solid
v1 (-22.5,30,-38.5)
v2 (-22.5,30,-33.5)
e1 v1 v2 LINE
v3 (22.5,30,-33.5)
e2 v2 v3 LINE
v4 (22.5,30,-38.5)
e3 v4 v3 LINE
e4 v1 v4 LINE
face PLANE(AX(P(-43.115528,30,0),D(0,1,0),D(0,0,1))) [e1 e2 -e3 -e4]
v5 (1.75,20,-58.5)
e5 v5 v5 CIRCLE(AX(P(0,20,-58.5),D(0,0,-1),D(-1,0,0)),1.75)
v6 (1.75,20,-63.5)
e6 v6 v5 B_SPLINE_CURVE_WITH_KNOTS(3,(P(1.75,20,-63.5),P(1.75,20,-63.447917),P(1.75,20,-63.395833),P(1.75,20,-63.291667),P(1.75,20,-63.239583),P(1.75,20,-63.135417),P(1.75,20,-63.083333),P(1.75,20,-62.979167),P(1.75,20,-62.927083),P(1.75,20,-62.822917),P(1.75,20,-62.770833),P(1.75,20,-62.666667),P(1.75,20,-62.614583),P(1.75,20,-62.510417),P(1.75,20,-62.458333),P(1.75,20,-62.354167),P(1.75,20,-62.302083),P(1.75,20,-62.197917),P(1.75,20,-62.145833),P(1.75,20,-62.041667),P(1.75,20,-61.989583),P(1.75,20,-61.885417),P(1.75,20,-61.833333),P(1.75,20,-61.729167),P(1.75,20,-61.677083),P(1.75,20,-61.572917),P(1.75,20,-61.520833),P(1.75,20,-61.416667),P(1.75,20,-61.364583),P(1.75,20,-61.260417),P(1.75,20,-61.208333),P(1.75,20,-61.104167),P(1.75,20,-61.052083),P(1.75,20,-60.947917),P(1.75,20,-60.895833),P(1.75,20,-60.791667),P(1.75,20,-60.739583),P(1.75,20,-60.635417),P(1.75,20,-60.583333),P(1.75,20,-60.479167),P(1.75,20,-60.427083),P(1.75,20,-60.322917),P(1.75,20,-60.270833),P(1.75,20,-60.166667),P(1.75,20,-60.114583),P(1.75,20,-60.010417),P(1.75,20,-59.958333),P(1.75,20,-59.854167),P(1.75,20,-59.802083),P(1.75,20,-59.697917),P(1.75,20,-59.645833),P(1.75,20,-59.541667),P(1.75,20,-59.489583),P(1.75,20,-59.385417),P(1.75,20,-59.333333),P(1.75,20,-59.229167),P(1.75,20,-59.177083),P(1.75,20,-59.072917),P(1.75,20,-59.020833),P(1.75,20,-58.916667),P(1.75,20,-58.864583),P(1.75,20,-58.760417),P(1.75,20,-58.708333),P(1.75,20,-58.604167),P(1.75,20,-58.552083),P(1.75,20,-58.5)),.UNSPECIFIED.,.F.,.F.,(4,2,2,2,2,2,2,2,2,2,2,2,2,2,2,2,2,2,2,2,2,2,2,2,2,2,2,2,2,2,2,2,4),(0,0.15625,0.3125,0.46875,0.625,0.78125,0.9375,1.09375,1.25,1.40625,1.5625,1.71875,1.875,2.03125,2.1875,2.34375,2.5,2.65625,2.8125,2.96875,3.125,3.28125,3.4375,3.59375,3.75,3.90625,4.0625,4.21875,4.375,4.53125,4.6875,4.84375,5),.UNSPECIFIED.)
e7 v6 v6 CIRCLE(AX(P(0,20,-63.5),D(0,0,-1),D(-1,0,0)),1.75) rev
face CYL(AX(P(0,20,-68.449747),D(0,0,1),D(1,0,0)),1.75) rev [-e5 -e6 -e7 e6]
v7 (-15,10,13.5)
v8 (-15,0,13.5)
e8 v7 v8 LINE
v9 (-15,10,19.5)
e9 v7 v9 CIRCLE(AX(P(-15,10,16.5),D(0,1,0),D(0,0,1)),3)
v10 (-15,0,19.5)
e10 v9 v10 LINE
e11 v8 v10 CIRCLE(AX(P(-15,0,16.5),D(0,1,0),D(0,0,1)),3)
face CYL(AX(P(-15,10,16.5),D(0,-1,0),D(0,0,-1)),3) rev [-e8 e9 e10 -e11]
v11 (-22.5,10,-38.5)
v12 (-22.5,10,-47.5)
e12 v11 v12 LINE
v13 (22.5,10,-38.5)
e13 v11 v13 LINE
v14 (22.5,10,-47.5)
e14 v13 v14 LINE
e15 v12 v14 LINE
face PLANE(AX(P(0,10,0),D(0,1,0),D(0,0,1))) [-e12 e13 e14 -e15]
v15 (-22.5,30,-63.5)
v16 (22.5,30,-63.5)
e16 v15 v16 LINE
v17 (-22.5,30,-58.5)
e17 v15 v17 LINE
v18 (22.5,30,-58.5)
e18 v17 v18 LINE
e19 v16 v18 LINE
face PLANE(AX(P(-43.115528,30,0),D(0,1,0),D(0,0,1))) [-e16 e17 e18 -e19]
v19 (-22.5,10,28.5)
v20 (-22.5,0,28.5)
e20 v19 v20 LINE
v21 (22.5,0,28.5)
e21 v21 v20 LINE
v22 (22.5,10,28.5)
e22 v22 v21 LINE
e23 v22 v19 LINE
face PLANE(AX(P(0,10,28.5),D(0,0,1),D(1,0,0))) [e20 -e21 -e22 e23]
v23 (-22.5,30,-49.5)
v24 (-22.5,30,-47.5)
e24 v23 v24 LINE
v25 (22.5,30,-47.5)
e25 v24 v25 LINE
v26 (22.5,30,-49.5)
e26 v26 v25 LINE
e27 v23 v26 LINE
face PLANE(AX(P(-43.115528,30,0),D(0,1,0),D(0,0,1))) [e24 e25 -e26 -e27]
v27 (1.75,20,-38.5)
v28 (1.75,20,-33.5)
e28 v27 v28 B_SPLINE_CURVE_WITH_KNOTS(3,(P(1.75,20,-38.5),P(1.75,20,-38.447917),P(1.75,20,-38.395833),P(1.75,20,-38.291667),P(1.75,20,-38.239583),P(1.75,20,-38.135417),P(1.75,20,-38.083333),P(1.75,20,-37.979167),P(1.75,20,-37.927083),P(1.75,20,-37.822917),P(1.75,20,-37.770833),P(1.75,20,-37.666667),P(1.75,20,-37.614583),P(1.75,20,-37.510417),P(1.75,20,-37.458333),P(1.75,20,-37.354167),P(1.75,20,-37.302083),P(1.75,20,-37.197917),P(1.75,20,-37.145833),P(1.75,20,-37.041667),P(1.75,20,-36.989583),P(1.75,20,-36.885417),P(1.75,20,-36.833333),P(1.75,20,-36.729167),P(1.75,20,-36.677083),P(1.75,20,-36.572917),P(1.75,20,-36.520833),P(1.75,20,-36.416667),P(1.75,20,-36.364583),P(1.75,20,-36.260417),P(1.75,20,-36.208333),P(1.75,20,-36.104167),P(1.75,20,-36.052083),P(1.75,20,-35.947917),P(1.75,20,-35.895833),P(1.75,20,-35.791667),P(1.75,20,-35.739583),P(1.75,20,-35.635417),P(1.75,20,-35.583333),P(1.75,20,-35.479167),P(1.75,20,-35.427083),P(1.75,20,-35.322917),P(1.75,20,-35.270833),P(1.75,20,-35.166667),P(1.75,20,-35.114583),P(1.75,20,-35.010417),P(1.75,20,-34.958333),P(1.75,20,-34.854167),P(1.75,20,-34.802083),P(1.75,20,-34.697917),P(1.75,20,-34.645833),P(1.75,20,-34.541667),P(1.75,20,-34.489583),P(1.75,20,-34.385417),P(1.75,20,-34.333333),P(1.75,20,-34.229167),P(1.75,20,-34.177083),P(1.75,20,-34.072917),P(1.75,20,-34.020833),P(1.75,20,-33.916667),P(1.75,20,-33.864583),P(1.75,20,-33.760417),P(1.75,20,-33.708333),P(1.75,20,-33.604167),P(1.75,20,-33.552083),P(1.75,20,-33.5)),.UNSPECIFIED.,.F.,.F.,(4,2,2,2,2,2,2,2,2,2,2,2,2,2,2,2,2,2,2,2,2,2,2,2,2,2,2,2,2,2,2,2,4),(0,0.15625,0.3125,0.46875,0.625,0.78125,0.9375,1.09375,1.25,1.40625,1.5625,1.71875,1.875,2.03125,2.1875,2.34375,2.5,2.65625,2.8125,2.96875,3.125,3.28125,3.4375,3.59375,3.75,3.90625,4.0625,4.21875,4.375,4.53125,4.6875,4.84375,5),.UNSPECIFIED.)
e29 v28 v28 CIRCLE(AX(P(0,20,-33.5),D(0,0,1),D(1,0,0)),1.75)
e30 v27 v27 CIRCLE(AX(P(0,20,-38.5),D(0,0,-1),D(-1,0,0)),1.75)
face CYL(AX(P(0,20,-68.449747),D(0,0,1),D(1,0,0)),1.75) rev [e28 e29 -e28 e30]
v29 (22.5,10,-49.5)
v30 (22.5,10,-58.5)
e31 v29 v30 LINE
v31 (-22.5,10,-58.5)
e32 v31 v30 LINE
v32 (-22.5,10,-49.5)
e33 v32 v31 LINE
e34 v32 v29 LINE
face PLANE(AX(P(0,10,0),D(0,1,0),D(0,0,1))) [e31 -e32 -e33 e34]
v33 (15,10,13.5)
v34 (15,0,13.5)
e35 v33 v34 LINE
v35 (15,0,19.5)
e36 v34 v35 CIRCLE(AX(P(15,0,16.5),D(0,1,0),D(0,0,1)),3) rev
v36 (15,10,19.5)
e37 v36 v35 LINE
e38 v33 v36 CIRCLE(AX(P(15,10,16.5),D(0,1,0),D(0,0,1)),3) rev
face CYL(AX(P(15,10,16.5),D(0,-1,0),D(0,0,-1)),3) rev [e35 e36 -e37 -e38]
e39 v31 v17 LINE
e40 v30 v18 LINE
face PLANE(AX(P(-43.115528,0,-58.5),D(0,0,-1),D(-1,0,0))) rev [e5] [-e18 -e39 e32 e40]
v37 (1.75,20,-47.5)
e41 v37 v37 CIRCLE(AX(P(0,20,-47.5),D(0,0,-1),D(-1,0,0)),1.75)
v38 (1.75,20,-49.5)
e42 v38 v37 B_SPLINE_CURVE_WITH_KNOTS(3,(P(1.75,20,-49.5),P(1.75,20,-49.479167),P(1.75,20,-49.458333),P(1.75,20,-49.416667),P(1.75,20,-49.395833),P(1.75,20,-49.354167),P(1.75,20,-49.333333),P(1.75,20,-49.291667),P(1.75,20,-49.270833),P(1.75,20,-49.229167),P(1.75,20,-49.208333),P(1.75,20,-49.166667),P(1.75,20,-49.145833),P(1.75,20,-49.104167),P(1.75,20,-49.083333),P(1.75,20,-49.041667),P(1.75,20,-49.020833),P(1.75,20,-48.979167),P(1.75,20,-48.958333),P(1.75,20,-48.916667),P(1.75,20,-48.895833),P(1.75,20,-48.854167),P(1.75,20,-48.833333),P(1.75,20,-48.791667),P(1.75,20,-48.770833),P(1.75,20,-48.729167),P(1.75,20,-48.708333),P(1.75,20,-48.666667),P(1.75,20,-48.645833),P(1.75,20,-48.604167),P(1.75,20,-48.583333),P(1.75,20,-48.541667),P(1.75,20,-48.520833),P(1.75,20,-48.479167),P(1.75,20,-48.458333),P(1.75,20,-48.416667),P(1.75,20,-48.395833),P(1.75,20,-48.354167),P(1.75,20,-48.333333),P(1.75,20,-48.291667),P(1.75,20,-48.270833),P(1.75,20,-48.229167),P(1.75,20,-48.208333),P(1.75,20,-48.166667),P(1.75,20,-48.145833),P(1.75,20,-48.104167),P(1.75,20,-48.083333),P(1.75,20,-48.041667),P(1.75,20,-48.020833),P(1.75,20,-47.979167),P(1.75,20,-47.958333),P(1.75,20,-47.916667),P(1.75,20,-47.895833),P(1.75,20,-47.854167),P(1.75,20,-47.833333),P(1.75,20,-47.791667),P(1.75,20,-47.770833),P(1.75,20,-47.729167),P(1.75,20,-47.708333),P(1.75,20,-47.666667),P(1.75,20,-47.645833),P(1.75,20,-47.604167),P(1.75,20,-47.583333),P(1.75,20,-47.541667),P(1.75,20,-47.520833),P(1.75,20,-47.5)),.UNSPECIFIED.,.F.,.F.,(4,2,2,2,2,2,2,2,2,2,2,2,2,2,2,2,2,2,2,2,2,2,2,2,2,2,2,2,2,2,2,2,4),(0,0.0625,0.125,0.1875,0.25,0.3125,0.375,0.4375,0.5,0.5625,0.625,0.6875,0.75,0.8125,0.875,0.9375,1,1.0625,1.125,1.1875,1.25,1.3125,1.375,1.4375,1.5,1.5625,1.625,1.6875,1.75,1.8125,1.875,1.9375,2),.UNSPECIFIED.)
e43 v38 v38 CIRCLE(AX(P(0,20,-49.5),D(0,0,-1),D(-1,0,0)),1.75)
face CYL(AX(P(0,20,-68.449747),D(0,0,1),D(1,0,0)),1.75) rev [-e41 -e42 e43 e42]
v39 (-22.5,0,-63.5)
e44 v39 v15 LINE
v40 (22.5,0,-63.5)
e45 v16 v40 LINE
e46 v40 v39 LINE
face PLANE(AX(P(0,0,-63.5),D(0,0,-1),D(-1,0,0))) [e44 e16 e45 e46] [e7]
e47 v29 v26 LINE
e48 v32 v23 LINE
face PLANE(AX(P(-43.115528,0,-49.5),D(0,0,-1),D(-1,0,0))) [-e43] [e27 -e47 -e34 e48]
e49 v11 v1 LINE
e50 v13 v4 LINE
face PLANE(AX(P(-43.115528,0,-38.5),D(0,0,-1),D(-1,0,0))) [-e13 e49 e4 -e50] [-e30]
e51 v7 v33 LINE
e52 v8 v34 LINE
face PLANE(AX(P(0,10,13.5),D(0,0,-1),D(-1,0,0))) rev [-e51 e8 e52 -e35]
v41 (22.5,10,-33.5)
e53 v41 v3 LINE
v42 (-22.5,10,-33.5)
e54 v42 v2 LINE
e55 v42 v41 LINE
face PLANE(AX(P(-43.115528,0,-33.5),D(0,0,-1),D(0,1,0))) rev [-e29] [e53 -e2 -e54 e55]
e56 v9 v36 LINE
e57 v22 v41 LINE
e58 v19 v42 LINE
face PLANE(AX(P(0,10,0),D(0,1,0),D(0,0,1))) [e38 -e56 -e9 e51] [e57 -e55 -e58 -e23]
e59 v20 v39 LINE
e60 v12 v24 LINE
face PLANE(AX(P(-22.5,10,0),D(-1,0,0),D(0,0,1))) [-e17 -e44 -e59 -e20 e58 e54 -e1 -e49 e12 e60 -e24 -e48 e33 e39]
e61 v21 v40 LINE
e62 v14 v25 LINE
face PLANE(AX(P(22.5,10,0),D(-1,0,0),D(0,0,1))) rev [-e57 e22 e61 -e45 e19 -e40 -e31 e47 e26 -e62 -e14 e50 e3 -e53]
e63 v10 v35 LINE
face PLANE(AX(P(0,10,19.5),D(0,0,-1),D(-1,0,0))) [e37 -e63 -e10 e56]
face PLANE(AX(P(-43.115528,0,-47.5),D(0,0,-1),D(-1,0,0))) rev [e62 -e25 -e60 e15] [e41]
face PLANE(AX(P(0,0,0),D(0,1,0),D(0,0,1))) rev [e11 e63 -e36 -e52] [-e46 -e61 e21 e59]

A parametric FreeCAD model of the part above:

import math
import FreeCAD as App
import Part
import Sketcher
from FreeCAD import Vector
Q = App.Units.Quantity


def add_polygon(sketch, points):
    """Adds a closed chain of lines whose ends are joined by coincident constraints."""
    first, n = sketch.GeometryCount, len(points)
    for a, b in zip(points, points[1:] + points[:1]):
        sketch.addGeometry(Part.LineSegment(App.Vector(*a, 0), App.Vector(*b, 0)), False)
    for i in range(n):
        sketch.addConstraint(Sketcher.Constraint("Coincident", first + i, 2, first + (i + 1) % n, 1))

doc = App.newDocument("Part")
body = doc.addObject("PartDesign::Body", "Body")

sketch1 = doc.addObject("Sketcher::SketchObject", "Sketch")
body.addObject(sketch1)
sketch1.AttachmentSupport = (doc.XZ_Plane, [""])
sketch1.MapMode = "FlatFace"
add_polygon(sketch1, [(-22.5, -28.5), (-22.5, 28.5), (22.5, 28.5), (22.5, -28.5)])
sketch1.addGeometry(Part.LineSegment(Vector(15, 19.5, 0), Vector(-15, 19.5, 0)), False)
sketch1.addGeometry(Part.ArcOfCircle(Part.Circle(Vector(-15, 16.5, 0), Vector(0, 0, 1), 3), math.radians(90), math.radians(270)), False)
sketch1.addGeometry(Part.LineSegment(Vector(-15, 13.5, 0), Vector(15, 13.5, 0)), False)
sketch1.addGeometry(Part.ArcOfCircle(Part.Circle(Vector(15, 16.5, 0), Vector(0, 0, 1), 3), math.radians(-90), math.radians(0)), False)
sketch1.addGeometry(Part.ArcOfCircle(Part.Circle(Vector(15, 16.5, 0), Vector(0, 0, 1), 3), math.radians(0), math.radians(90)), False)
sketch1.addConstraint(Sketcher.Constraint("Tangent", 4, 2, 5, 1))
sketch1.addConstraint(Sketcher.Constraint("Tangent", 5, 2, 6, 1))
sketch1.addConstraint(Sketcher.Constraint("Tangent", 6, 2, 7, 1))
sketch1.addConstraint(Sketcher.Constraint("Tangent", 7, 2, 8, 1))
sketch1.addConstraint(Sketcher.Constraint("Tangent", 8, 2, 4, 1))
sketch1.addConstraint(Sketcher.Constraint("Vertical", 0))
sketch1.addConstraint(Sketcher.Constraint("Horizontal", 1))
sketch1.addConstraint(Sketcher.Constraint("Vertical", 2))
sketch1.addConstraint(Sketcher.Constraint("Horizontal", 3))
sketch1.addConstraint(Sketcher.Constraint("Horizontal", 4))
sketch1.addConstraint(Sketcher.Constraint("Horizontal", 6))
sketch1.addConstraint(Sketcher.Constraint("Equal", 5, 7))
sketch1.addConstraint(Sketcher.Constraint("Symmetric", 0, 2, 2, 2, -1, 1))
sketch1.addConstraint(Sketcher.Constraint("Horizontal", 8, 3, 7, 2))
sketch1.addConstraint(Sketcher.Constraint("Radius", 5, Q("3 mm")))
sketch1.addConstraint(Sketcher.Constraint("DistanceX", 1, 1, 1, 2, Q("45 mm")))
sketch1.addConstraint(Sketcher.Constraint("DistanceX", 4, 2, 4, 1, Q("30 mm")))
sketch1.addConstraint(Sketcher.Constraint("DistanceY", 0, 1, 0, 2, Q("57 mm")))
sketch1.addConstraint(Sketcher.Constraint("DistanceX", 5, 3, -1, 1, Q("15 mm")))
sketch1.addConstraint(Sketcher.Constraint("DistanceY", 5, 3, 0, 2, Q("12 mm")))
pad1 = doc.addObject("PartDesign::Pad", "Pad")
body.addObject(pad1)
pad1.Profile = sketch1
pad1.Length = 10
pad1.Reversed = True

sketch2 = doc.addObject("Sketcher::SketchObject", "Sketch001")
body.addObject(sketch2)
sketch2.AttachmentSupport = (doc.XY_Plane, [""])
sketch2.MapMode = "FlatFace"
sketch2.AttachmentOffset = App.Placement(Vector(0, 0, -28.5), App.Rotation())
add_polygon(sketch2, [(22.5, 10), (22.5, 0), (-22.5, 0), (-22.5, 10)])
sketch2.addConstraint(Sketcher.Constraint("Vertical", 0))
sketch2.addConstraint(Sketcher.Constraint("Horizontal", 1))
sketch2.addConstraint(Sketcher.Constraint("Vertical", 2))
sketch2.addConstraint(Sketcher.Constraint("Horizontal", 3))
sketch2.addConstraint(Sketcher.Constraint("Symmetric", 0, 2, 1, 2, -1, 1))
sketch2.addConstraint(Sketcher.Constraint("DistanceX", 1, 2, 1, 1, Q("45 mm")))
sketch2.addConstraint(Sketcher.Constraint("DistanceY", 0, 2, 0, 1, Q("10 mm")))
pad2 = doc.addObject("PartDesign::Pad", "Pad001")
body.addObject(pad2)
pad2.Profile = sketch2
pad2.Length = 35
pad2.Reversed = True

sketch3 = doc.addObject("Sketcher::SketchObject", "Sketch002")
body.addObject(sketch3)
sketch3.AttachmentSupport = (doc.YZ_Plane, [""])
sketch3.MapMode = "FlatFace"
sketch3.AttachmentOffset = App.Placement(Vector(0, 0, 22.5), App.Rotation())
add_polygon(sketch3, [(30, -33.5), (10, -33.5), (10, -38.5), (30, -38.5)])
add_polygon(sketch3, [(30, -47.5), (10, -47.5), (10, -49.5), (30, -49.5)])
add_polygon(sketch3, [(30, -58.5), (10, -58.5), (10, -63.5), (30, -63.5)])
sketch3.addConstraint(Sketcher.Constraint("Horizontal", 0))
sketch3.addConstraint(Sketcher.Constraint("Vertical", 1))
sketch3.addConstraint(Sketcher.Constraint("Horizontal", 2))
sketch3.addConstraint(Sketcher.Constraint("Vertical", 3))
sketch3.addConstraint(Sketcher.Constraint("Horizontal", 4))
sketch3.addConstraint(Sketcher.Constraint("Vertical", 5))
sketch3.addConstraint(Sketcher.Constraint("Horizontal", 6))
sketch3.addConstraint(Sketcher.Constraint("Vertical", 7))
sketch3.addConstraint(Sketcher.Constraint("Horizontal", 8))
sketch3.addConstraint(Sketcher.Constraint("Vertical", 9))
sketch3.addConstraint(Sketcher.Constraint("Horizontal", 10))
sketch3.addConstraint(Sketcher.Constraint("Vertical", 11))
sketch3.addConstraint(Sketcher.Constraint("Vertical", 1, 2, 4, 2))
sketch3.addConstraint(Sketcher.Constraint("Vertical", 3, 2, 6, 2))
sketch3.addConstraint(Sketcher.Constraint("Vertical", 5, 2, 8, 2))
sketch3.addConstraint(Sketcher.Constraint("Vertical", 7, 2, 10, 2))
sketch3.addConstraint(Sketcher.Constraint("Equal", 3, 9))
sketch3.addConstraint(Sketcher.Constraint("DistanceX", 0, 2, 0, 1, Q("20 mm")))
sketch3.addConstraint(Sketcher.Constraint("DistanceY", 1, 2, 1, 1, Q("5 mm")))
sketch3.addConstraint(Sketcher.Constraint("DistanceY", 5, 2, 5, 1, Q("2 mm")))
sketch3.addConstraint(Sketcher.Constraint("DistanceX", -1, 1, 0, 2, Q("10 mm")))
sketch3.addConstraint(Sketcher.Constraint("DistanceY", 4, 2, 1, 2, Q("9 mm")))
sketch3.addConstraint(Sketcher.Constraint("DistanceY", 8, 2, 5, 2, Q("9 mm")))
sketch3.addConstraint(Sketcher.Constraint("DistanceY", 0, 2, -1, 1, Q("33.5 mm")))
pad3 = doc.addObject("PartDesign::Pad", "Pad002")
body.addObject(pad3)
pad3.Profile = sketch3
pad3.Length = 45
pad3.Reversed = True

sketch4 = doc.addObject("Sketcher::SketchObject", "Sketch003")
body.addObject(sketch4)
sketch4.AttachmentSupport = (doc.XY_Plane, [""])
sketch4.MapMode = "FlatFace"
sketch4.AttachmentOffset = App.Placement(Vector(0, 0, -63.5), App.Rotation())
sketch4.addGeometry(Part.Circle(Vector(0, 20, 0), Vector(0, 0, 1), 1.75), False)
sketch4.addConstraint(Sketcher.Constraint("PointOnObject", 0, 3, -2))
sketch4.addConstraint(Sketcher.Constraint("Diameter", 0, Q("3.5 mm")))
sketch4.addConstraint(Sketcher.Constraint("DistanceY", -1, 1, 0, 3, Q("20 mm")))
pocket1 = doc.addObject("PartDesign::Pocket", "Pocket")
body.addObject(pocket1)
pocket1.Profile = sketch4
pocket1.Length = 30
pocket1.Reversed = True

doc.recompute()
